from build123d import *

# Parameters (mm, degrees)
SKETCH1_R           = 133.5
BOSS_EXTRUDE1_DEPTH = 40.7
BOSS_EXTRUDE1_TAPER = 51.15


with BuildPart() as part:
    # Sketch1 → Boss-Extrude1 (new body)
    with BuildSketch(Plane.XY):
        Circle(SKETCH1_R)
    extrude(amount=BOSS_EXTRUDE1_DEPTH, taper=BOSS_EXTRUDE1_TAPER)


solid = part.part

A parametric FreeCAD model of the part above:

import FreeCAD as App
import Part
import Sketcher
Q = App.Units.Quantity

doc = App.newDocument("Part")
params = doc.addObject("Spreadsheet::Sheet", "Params")
for row, (alias, value) in enumerate([
    ("sketch1_diameter", "267 mm"),
    ("pad1_length", "40.7 mm"),
    ("pad1_taper", "-51.15 deg"),
], start=1):
    params.set(f"A{row}", alias)
    params.set(f"B{row}", "=" + value)
    params.setAlias(f"B{row}", alias)

body = doc.addObject("PartDesign::Body", "Body")

sketch1 = body.newObject("Sketcher::SketchObject", "Sketch")
sketch1.AttachmentSupport = (doc.getObject("XY_Plane"), [""])
sketch1.MapMode = "FlatFace"
sketch1.addGeometry(Part.Circle(App.Vector(0, 0, 0), App.Vector(0, 0, 1), 134), False)
sketch1.addConstraint([
    Sketcher.Constraint("Coincident", 0, 3, -1, 1),
    Sketcher.Constraint("Diameter", 0, Q("267 mm")),
])
sketch1.setExpression("Constraints[1]", "Params.sketch1_diameter")
pad1 = body.newObject("PartDesign::Pad", "Pad")
pad1.Profile = sketch1
pad1.setExpression("Length", "Params.pad1_length")
pad1.setExpression("TaperAngle", "Params.pad1_taper")

doc.recompute()
